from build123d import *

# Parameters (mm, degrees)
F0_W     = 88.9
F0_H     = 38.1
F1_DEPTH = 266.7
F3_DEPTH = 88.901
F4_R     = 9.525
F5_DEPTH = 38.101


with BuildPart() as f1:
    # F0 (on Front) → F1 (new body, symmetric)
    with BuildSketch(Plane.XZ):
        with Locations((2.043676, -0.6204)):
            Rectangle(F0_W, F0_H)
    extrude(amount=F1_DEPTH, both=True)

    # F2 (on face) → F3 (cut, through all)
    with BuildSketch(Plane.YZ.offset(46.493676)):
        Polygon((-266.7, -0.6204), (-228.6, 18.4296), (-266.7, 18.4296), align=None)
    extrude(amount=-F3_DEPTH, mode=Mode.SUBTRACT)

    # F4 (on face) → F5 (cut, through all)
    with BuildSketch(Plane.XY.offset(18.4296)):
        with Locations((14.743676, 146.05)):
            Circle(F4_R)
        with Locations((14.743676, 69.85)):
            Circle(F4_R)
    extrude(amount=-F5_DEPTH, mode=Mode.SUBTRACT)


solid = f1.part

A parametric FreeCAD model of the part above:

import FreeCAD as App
import Part
import Sketcher

V = App.Vector
Q = App.Units.Quantity


def add_polygon(sketch, points):
    """Adds a closed chain of lines whose ends are joined by coincident constraints."""
    first, n = sketch.GeometryCount, len(points)
    for a, b in zip(points, points[1:] + points[:1]):
        sketch.addGeometry(Part.LineSegment(App.Vector(*a, 0), App.Vector(*b, 0)), False)
    for i in range(n):
        sketch.addConstraint(Sketcher.Constraint("Coincident", first + i, 2, first + (i + 1) % n, 1))

doc = App.newDocument("Part")
params = doc.addObject("Spreadsheet::Sheet", "Params")
for row, (alias, value) in enumerate([
    ("sketch1_width", "3.5 in"),
    ("sketch1_height", "1.5 in"),
    ("pad1_length", "21 in"),
    ("sketch2_width", "1.5 in"),
    ("sketch2_height", "0.75 in"),
    ("sketch3_diameter", "0.75 in"),
], start=1):
    params.set(f"A{row}", alias)
    params.set(f"B{row}", "=" + value)
    params.setAlias(f"B{row}", alias)

body = doc.addObject("PartDesign::Body", "Body")

sketch1 = body.newObject("Sketcher::SketchObject", "Sketch")
sketch1.AttachmentSupport = (doc.getObject("XZ_Plane"), [""])
sketch1.MapMode = "FlatFace"
add_polygon(sketch1, [(-42, 18), (-42, -20), (46, -20), (46, 18)])
sketch1.addConstraint(Sketcher.Constraint("Vertical", 0))
sketch1.addConstraint(Sketcher.Constraint("Horizontal", 1))
sketch1.addConstraint(Sketcher.Constraint("Vertical", 2))
sketch1.addConstraint(Sketcher.Constraint("Horizontal", 3))
sketch1.addConstraint(Sketcher.Constraint("DistanceX", 1, 1, 1, 2, Q("3.5 in")))
sketch1.addConstraint(Sketcher.Constraint("DistanceY", 0, 2, 0, 1, Q("1.5 in")))
sketch1.addConstraint(Sketcher.Constraint("DistanceY", 0, 2, -1, 1, Q("19.6704 mm")))
sketch1.addConstraint(Sketcher.Constraint("DistanceX", 0, 2, -1, 1, Q("42.406324 mm")))
sketch1.setExpression("Constraints[8]", "Params.sketch1_width")
sketch1.setExpression("Constraints[9]", "Params.sketch1_height")
pad1 = body.newObject("PartDesign::Pad", "Pad")
pad1.Profile = sketch1
pad1.setExpression("Length", "Params.pad1_length")
pad1.Midplane = True

sketch2 = body.newObject("Sketcher::SketchObject", "Sketch001")
sketch2.AttachmentSupport = (doc.getObject("YZ_Plane"), [""])
sketch2.MapMode = "FlatFace"
sketch2.AttachmentOffset = App.Placement(V(0, 0, 46.493676), App.Rotation())
add_polygon(sketch2, [(-267, -1), (-229, 18), (-267, 18)])
sketch2.addConstraint(Sketcher.Constraint("Horizontal", 1))
sketch2.addConstraint(Sketcher.Constraint("Vertical", 2))
sketch2.addConstraint(Sketcher.Constraint("DistanceX", 1, 2, 1, 1, Q("1.5 in")))
sketch2.addConstraint(Sketcher.Constraint("DistanceX", 0, 2, -1, 1, Q("9 in")))
sketch2.addConstraint(Sketcher.Constraint("DistanceY", 2, 2, 2, 1, Q("0.75 in")))
sketch2.addConstraint(Sketcher.Constraint("DistanceY", -1, 1, 0, 2, Q("18.4296 mm")))
sketch2.setExpression("Constraints[5]", "Params.sketch2_width")
sketch2.setExpression("Constraints[7]", "Params.sketch2_height")
pocket1 = body.newObject("PartDesign::Pocket", "Pocket")
pocket1.Profile = sketch2
pocket1.Type = "ThroughAll"

sketch3 = body.newObject("Sketcher::SketchObject", "Sketch002")
sketch3.AttachmentSupport = (doc.getObject("XY_Plane"), [""])
sketch3.MapMode = "FlatFace"
sketch3.AttachmentOffset = App.Placement(V(0, 0, 18.4296), App.Rotation())
sketch3.addGeometry(Part.Circle(V(15, 146, 0), V(0, 0, 1), 10), False)
sketch3.addGeometry(Part.Circle(V(15, 70, 0), V(0, 0, 1), 10), False)
sketch3.addConstraint(Sketcher.Constraint("Equal", 0, 1))
sketch3.addConstraint(Sketcher.Constraint("Vertical", 0, 3, 1, 3))
sketch3.addConstraint(Sketcher.Constraint("Diameter", 0, Q("0.75 in")))
sketch3.addConstraint(Sketcher.Constraint("DistanceY", 1, 3, 0, 3, Q("3 in")))
sketch3.addConstraint(Sketcher.Constraint("DistanceY", -1, 1, 0, 3, Q("5.75 in")))
sketch3.addConstraint(Sketcher.Constraint("DistanceX", -1, 1, 0, 3, Q("14.743676 mm")))
sketch3.setExpression("Constraints[2]", "Params.sketch3_diameter")
pocket2 = body.newObject("PartDesign::Pocket", "Pocket001")
pocket2.Profile = sketch3
pocket2.Type = "ThroughAll"

doc.recompute()
